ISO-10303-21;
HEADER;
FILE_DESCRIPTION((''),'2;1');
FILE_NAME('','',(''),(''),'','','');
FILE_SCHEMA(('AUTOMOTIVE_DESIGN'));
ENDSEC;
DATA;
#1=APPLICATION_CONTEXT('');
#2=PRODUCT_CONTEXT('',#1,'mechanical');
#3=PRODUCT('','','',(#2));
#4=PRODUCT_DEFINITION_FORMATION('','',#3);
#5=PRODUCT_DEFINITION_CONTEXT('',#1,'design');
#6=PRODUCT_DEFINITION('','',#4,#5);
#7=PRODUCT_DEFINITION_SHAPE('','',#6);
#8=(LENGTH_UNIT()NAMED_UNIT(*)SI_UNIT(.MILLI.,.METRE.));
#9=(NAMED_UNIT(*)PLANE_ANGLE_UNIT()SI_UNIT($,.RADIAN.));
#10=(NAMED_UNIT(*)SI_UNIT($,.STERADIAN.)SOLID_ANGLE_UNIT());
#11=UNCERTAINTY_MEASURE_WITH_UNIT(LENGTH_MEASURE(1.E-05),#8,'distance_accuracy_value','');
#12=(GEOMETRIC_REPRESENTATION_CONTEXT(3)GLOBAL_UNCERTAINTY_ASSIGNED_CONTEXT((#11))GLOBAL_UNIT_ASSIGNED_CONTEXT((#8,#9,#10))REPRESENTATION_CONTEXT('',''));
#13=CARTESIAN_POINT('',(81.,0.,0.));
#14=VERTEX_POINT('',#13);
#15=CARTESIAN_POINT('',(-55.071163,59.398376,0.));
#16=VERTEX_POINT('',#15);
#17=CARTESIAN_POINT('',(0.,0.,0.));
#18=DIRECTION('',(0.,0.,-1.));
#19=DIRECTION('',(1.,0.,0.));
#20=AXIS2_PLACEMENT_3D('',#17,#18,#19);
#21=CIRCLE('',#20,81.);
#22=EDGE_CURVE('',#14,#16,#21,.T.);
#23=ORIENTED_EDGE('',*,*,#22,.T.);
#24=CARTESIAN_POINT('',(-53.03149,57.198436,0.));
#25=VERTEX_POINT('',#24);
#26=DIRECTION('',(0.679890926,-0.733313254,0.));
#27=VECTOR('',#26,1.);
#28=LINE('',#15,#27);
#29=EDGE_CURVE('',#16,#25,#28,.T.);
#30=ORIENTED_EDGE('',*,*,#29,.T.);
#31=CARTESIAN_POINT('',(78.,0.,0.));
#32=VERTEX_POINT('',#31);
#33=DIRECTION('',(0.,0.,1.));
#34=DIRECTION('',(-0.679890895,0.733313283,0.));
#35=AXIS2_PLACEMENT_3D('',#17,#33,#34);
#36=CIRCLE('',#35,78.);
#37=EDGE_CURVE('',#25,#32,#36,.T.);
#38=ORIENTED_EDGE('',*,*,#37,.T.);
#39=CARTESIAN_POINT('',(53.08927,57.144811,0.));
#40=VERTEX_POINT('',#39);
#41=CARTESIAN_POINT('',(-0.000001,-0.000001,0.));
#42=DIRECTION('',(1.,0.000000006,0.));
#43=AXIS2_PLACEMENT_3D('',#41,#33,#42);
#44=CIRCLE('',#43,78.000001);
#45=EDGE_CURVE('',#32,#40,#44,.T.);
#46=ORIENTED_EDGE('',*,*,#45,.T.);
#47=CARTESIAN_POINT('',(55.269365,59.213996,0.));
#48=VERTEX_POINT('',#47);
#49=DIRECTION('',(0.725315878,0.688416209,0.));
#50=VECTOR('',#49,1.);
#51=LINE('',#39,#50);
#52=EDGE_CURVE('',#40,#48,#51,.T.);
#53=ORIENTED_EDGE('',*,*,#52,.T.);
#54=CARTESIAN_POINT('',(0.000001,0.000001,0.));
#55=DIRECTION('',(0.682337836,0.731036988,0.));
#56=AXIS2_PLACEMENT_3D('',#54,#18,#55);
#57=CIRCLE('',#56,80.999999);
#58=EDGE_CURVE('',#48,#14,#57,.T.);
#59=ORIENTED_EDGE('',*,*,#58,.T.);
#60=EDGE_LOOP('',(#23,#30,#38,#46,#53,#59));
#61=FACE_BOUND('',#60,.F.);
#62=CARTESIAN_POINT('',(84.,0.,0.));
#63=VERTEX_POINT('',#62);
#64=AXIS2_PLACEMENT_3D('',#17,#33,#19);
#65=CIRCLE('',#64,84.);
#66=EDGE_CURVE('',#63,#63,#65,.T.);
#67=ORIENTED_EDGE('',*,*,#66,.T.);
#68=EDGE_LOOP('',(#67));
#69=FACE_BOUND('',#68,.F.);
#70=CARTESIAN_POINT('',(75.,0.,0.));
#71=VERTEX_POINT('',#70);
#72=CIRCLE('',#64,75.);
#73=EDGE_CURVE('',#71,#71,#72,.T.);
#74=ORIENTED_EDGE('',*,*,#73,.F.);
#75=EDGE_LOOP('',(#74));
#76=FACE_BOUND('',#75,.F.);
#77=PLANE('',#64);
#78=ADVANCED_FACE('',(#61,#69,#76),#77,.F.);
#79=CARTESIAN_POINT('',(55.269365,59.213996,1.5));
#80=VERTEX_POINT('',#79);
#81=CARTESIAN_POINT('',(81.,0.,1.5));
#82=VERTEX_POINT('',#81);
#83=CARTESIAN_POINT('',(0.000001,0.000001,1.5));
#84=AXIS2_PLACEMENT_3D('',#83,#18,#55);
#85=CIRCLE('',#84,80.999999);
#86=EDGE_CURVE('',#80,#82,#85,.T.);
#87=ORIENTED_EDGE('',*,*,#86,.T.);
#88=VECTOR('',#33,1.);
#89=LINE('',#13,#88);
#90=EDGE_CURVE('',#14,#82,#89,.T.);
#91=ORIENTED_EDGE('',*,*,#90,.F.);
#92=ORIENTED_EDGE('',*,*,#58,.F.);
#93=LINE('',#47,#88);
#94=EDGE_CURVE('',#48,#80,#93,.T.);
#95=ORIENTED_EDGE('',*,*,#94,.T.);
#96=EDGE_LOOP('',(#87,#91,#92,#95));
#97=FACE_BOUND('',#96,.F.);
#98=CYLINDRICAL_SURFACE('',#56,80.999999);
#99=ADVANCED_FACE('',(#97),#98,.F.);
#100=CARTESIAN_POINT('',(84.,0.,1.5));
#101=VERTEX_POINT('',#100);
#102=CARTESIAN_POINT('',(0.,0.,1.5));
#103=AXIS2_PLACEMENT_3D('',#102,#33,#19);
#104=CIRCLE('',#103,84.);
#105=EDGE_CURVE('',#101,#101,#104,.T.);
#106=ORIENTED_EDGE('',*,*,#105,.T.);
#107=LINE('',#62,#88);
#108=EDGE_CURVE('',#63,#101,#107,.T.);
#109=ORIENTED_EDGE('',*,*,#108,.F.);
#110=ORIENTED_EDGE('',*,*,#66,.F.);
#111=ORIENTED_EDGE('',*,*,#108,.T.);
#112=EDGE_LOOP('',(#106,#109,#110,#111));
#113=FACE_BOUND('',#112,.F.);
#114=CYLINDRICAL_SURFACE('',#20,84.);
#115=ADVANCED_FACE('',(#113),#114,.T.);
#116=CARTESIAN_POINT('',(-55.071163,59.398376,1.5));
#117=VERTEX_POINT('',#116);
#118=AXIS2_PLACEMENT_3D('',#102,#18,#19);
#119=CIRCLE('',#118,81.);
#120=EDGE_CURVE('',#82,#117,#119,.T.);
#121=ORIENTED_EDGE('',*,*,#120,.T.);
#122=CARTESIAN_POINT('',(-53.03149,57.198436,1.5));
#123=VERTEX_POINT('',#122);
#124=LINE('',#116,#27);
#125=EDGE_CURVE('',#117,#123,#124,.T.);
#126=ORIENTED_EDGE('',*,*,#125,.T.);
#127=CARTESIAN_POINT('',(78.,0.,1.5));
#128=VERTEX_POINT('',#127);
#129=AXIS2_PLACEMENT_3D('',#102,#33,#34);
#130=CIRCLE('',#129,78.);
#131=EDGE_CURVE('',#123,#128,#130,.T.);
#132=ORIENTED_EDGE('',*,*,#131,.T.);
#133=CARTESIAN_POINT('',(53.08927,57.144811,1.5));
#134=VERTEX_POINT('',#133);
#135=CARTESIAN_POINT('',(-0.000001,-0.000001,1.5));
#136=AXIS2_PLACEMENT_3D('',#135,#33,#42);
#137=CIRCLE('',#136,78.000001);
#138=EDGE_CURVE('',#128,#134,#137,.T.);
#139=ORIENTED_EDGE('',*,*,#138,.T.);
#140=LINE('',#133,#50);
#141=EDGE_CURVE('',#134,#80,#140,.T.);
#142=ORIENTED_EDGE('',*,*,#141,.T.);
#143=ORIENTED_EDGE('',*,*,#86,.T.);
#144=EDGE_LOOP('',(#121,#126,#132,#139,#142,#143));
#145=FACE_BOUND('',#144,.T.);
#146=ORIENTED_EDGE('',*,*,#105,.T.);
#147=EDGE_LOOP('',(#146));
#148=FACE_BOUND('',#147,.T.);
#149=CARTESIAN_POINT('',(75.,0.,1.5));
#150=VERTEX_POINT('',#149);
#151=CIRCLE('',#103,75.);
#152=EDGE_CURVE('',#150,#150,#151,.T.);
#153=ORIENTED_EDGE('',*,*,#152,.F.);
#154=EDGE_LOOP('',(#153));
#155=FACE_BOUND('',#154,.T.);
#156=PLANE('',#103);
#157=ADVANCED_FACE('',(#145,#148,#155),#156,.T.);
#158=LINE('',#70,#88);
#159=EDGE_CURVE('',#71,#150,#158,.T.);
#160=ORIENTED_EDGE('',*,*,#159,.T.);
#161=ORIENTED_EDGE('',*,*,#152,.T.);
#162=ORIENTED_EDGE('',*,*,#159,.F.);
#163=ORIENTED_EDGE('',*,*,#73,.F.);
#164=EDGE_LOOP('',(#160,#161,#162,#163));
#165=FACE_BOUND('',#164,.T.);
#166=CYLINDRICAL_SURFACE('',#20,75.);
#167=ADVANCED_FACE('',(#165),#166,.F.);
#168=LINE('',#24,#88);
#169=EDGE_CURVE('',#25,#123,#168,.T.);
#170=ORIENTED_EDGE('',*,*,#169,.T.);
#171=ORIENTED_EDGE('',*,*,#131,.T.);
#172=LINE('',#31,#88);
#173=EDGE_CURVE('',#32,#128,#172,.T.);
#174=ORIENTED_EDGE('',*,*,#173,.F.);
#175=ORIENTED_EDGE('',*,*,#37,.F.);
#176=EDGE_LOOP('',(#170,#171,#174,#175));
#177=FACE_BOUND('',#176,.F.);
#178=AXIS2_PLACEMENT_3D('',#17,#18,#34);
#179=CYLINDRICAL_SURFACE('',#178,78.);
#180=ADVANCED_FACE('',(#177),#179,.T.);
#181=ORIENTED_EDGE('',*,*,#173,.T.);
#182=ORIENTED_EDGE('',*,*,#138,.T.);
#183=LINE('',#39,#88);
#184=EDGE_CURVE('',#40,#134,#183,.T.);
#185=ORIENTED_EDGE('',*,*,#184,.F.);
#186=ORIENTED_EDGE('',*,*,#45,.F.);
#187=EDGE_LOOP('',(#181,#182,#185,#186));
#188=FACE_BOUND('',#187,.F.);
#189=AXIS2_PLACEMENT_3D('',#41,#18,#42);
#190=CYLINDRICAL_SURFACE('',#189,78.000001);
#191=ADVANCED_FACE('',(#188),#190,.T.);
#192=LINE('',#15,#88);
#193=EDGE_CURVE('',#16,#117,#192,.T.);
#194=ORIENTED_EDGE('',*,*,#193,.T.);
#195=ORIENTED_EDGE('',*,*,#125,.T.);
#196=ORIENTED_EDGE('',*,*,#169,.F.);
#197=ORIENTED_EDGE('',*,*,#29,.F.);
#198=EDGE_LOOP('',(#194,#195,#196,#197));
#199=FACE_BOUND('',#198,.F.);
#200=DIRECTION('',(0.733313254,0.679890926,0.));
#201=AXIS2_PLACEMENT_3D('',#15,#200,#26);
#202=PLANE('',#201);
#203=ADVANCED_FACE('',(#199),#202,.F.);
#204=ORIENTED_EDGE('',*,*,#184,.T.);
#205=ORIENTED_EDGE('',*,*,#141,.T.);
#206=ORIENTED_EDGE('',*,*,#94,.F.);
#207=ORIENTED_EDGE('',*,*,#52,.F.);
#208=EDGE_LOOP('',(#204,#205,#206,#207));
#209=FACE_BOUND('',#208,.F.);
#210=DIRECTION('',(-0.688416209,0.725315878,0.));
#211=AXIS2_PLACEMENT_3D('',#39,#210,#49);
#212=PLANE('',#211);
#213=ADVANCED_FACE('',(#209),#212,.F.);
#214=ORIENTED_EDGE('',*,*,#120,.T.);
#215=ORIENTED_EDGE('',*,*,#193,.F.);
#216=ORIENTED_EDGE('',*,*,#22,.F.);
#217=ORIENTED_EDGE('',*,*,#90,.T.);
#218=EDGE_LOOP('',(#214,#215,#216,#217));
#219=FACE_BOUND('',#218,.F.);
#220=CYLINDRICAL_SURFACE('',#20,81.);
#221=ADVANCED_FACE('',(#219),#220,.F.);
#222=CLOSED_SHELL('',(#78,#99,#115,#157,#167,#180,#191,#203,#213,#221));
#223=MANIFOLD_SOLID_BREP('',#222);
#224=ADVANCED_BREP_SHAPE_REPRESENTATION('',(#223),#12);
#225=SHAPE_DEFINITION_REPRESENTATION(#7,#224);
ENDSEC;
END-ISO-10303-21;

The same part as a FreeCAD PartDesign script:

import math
import FreeCAD as App
import Part
import Sketcher
Q = App.Units.Quantity

doc = App.newDocument("Part")
body = doc.addObject("PartDesign::Body", "Body")

sketch1 = body.newObject("Sketcher::SketchObject", "Sketch")
sketch1.AttachmentSupport = (doc.getObject("XY_Plane"), [""])
sketch1.MapMode = "FlatFace"
sketch1.addGeometry(Part.Circle(App.Vector(0, 0, 0), App.Vector(0, 0, 1), 84), False)
sketch1.addGeometry(Part.ArcOfCircle(Part.Circle(App.Vector(0, 0, 0), App.Vector(0, 0, 1), 81), math.radians(132.835118), math.radians(360)), False)
sketch1.addGeometry(Part.LineSegment(App.Vector(-55.071163, 59.398376, 0), App.Vector(-53.03149, 57.198436, 0)), False)
sketch1.addGeometry(Part.ArcOfCircle(Part.Circle(App.Vector(0, 0, 0), App.Vector(0, 0, 1), 78), math.radians(132.835118), math.radians(360)), False)
sketch1.addGeometry(Part.ArcOfCircle(Part.Circle(App.Vector(-0.000001, 0, 0), App.Vector(0, 0, 1), 78.000001), math.radians(0), math.radians(47.106976)), False)
sketch1.addGeometry(Part.LineSegment(App.Vector(53.08927, 57.144811, 0), App.Vector(55.269365, 59.213996, 0)), False)
sketch1.addGeometry(Part.ArcOfCircle(Part.Circle(App.Vector(0.000001, 0.000001, 0), App.Vector(0, 0, 1), 80.999999), math.radians(0), math.radians(46.973399)), False)
sketch1.addGeometry(Part.Circle(App.Vector(0, 0, 0), App.Vector(0, 0, 1), 75), False)
sketch1.addConstraint(Sketcher.Constraint("Coincident", 1, 1, 2, 1))
sketch1.addConstraint(Sketcher.Constraint("Coincident", 2, 2, 3, 1))
sketch1.addConstraint(Sketcher.Constraint("Tangent", 3, 2, 4, 1))
sketch1.addConstraint(Sketcher.Constraint("Coincident", 4, 2, 5, 1))
sketch1.addConstraint(Sketcher.Constraint("Coincident", 5, 2, 6, 2))
sketch1.addConstraint(Sketcher.Constraint("Tangent", 6, 1, 1, 2))
sketch1.addConstraint(Sketcher.Constraint("Coincident", 0, 3, -1, 1))
sketch1.addConstraint(Sketcher.Constraint("Coincident", 1, 3, -1, 1))
sketch1.addConstraint(Sketcher.Constraint("Coincident", 3, 3, -1, 1))
sketch1.addConstraint(Sketcher.Constraint("Coincident", 7, 3, -1, 1))
sketch1.addConstraint(Sketcher.Constraint("Equal", 3, 4))
sketch1.addConstraint(Sketcher.Constraint("Equal", 1, 6))
sketch1.addConstraint(Sketcher.Constraint("PointOnObject", 3, 2, -1))
sketch1.addConstraint(Sketcher.Constraint("PointOnObject", 6, 1, -1))
sketch1.addConstraint(Sketcher.Constraint("Diameter", 0, Q("168 mm")))
sketch1.addConstraint(Sketcher.Constraint("Diameter", 7, Q("150 mm")))
sketch1.addConstraint(Sketcher.Constraint("Radius", 1, Q("81 mm")))
sketch1.addConstraint(Sketcher.Constraint("Radius", 3, Q("78 mm")))
sketch1.addConstraint(Sketcher.Constraint("Distance", 5, Q("3.005718 mm")))
sketch1.addConstraint(Sketcher.Constraint("DistanceX", 2, 2, -1, 1, Q("53.03149 mm")))
sketch1.addConstraint(Sketcher.Constraint("DistanceX", -1, 1, 4, 2, Q("53.08927 mm")))
sketch1.addConstraint(Sketcher.Constraint("DistanceX", 1, 1, 4, 3, Q("55.071162 mm")))
pad1 = body.newObject("PartDesign::Pad", "Pad")
pad1.Profile = sketch1
pad1.Length = 1.5

doc.recompute()
